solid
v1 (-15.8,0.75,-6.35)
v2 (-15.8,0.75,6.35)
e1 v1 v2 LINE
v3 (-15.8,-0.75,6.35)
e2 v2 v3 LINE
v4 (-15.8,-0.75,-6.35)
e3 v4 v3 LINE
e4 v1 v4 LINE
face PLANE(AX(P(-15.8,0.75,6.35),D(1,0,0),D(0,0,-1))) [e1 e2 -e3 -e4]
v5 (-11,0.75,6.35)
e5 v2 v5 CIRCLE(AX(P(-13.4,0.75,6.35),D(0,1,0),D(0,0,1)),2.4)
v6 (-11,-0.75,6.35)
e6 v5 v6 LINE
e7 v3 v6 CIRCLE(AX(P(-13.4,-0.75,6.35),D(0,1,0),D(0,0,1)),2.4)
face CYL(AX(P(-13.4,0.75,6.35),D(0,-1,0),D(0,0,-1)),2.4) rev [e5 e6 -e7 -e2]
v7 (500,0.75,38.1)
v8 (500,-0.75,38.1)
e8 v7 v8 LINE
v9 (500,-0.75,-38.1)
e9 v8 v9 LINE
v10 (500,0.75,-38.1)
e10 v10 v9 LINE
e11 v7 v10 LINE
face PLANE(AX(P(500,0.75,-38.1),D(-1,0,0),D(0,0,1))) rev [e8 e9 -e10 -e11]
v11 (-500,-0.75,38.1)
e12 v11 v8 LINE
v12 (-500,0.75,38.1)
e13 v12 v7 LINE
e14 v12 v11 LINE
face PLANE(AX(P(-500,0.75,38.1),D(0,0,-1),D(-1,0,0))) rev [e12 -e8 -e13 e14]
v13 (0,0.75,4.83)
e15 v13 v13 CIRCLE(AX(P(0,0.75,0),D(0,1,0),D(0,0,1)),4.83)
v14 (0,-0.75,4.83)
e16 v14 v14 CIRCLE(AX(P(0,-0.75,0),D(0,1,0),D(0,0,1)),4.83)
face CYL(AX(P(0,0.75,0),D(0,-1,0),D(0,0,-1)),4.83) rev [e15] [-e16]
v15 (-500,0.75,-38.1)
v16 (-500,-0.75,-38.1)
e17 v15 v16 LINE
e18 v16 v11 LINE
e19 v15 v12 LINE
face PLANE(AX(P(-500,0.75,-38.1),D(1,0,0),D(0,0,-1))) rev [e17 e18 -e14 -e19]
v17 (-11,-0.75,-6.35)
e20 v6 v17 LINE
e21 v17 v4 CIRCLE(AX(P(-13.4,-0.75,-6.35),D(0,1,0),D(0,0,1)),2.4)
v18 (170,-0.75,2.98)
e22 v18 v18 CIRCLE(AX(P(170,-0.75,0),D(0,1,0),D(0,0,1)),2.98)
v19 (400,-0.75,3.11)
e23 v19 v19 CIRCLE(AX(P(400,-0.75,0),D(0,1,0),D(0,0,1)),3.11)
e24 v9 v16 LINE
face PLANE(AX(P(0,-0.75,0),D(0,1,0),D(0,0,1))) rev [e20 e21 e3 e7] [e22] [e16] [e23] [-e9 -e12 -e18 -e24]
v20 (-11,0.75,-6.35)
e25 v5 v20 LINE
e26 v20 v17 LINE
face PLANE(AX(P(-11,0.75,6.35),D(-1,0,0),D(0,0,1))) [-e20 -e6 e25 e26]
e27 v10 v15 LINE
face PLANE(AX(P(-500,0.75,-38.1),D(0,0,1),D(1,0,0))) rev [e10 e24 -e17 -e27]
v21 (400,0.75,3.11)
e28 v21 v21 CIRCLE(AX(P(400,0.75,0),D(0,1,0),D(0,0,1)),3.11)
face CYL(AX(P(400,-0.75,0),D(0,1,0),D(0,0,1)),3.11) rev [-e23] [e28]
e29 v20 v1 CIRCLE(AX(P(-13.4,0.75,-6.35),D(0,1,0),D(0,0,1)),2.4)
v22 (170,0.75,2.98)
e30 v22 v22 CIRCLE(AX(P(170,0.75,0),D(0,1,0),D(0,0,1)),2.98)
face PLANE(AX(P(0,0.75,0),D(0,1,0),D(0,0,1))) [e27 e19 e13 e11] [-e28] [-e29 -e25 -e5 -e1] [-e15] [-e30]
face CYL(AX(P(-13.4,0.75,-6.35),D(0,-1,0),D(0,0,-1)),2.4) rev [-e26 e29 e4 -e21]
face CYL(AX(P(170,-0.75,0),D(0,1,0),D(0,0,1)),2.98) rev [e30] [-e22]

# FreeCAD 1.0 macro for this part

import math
import FreeCAD as App
import Part
import Sketcher

V = App.Vector
Q = App.Units.Quantity


def add_polygon(sketch, points):
    """Adds a closed chain of lines whose ends are joined by coincident constraints."""
    first, n = sketch.GeometryCount, len(points)
    for a, b in zip(points, points[1:] + points[:1]):
        sketch.addGeometry(Part.LineSegment(App.Vector(*a, 0), App.Vector(*b, 0)), False)
    for i in range(n):
        sketch.addConstraint(Sketcher.Constraint("Coincident", first + i, 2, first + (i + 1) % n, 1))

doc = App.newDocument("Part")
params = doc.addObject("Spreadsheet::Sheet", "Params")
for row, (alias, value) in enumerate([
    ("sketch1_radius", "2.4 mm"),
    ("sketch1_diameter", "9.66 mm"),
    ("sketch1_width", "1000 mm"),
    ("sketch1_height", "76.2 mm"),
    ("sketch1_height2", "12.7 mm"),
    ("pad1_length", "1.5 mm"),
    ("sketch2_diameter", "5.96 mm"),
    ("sketch2_diameter2", "6.22 mm"),
], start=1):
    params.set(f"A{row}", alias)
    params.set(f"B{row}", "=" + value)
    params.setAlias(f"B{row}", alias)

body = doc.addObject("PartDesign::Body", "Body")

sketch1 = body.newObject("Sketcher::SketchObject", "Sketch")
sketch1.AttachmentSupport = (doc.getObject("XZ_Plane"), [""])
sketch1.MapMode = "FlatFace"
add_polygon(sketch1, [(-500, -38.1), (-500, 38.1), (500, 38.1), (500, -38.1)])
sketch1.addGeometry(Part.ArcOfCircle(Part.Circle(V(-13.4, 6.35, 0), V(0, 0, 1), 2.4), math.radians(0), math.radians(180)), False)
sketch1.addGeometry(Part.LineSegment(V(-15.8, 6.35, 0), V(-15.8, -6.35, 0)), False)
sketch1.addGeometry(Part.ArcOfCircle(Part.Circle(V(-13.4, -6.35, 0), V(0, 0, 1), 2.4), math.radians(180), math.radians(360)), False)
sketch1.addGeometry(Part.LineSegment(V(-11, -6.35, 0), V(-11, 6.35, 0)), False)
sketch1.addGeometry(Part.Circle(V(0, 0, 0), V(0, 0, 1), 4.83), False)
sketch1.addConstraint(Sketcher.Constraint("Tangent", 4, 2, 5, 1))
sketch1.addConstraint(Sketcher.Constraint("Tangent", 5, 2, 6, 1))
sketch1.addConstraint(Sketcher.Constraint("Tangent", 6, 2, 7, 1))
sketch1.addConstraint(Sketcher.Constraint("Tangent", 7, 2, 4, 1))
sketch1.addConstraint(Sketcher.Constraint("Vertical", 0))
sketch1.addConstraint(Sketcher.Constraint("Horizontal", 1))
sketch1.addConstraint(Sketcher.Constraint("Vertical", 2))
sketch1.addConstraint(Sketcher.Constraint("Horizontal", 3))
sketch1.addConstraint(Sketcher.Constraint("Vertical", 5))
sketch1.addConstraint(Sketcher.Constraint("Vertical", 7))
sketch1.addConstraint(Sketcher.Constraint("Coincident", 8, 3, -1, 1))
sketch1.addConstraint(Sketcher.Constraint("Symmetric", 0, 2, 2, 2, -1, 1))
sketch1.addConstraint(Sketcher.Constraint("Radius", 4, Q("2.4 mm")))
sketch1.addConstraint(Sketcher.Constraint("Diameter", 8, Q("9.66 mm")))
sketch1.addConstraint(Sketcher.Constraint("DistanceX", 1, 1, 1, 2, Q("1000 mm")))
sketch1.addConstraint(Sketcher.Constraint("DistanceY", 0, 1, 0, 2, Q("76.2 mm")))
sketch1.addConstraint(Sketcher.Constraint("DistanceY", 5, 2, 5, 1, Q("12.7 mm")))
sketch1.addConstraint(Sketcher.Constraint("DistanceX", 6, 2, -1, 1, Q("11 mm")))
sketch1.addConstraint(Sketcher.Constraint("DistanceY", -1, 1, 4, 3, Q("6.35 mm")))
sketch1.setExpression("Constraints[16]", "Params.sketch1_radius")
sketch1.setExpression("Constraints[17]", "Params.sketch1_diameter")
sketch1.setExpression("Constraints[18]", "Params.sketch1_width")
sketch1.setExpression("Constraints[19]", "Params.sketch1_height")
sketch1.setExpression("Constraints[20]", "Params.sketch1_height2")
pad1 = body.newObject("PartDesign::Pad", "Pad")
pad1.Profile = sketch1
pad1.setExpression("Length", "Params.pad1_length")
pad1.Midplane = True

sketch2 = body.newObject("Sketcher::SketchObject", "Sketch001")
sketch2.AttachmentSupport = (doc.getObject("XZ_Plane"), [""])
sketch2.MapMode = "FlatFace"
sketch2.AttachmentOffset = App.Placement(V(0, 0, -0.75), App.Rotation())
sketch2.addGeometry(Part.Circle(V(170, 0, 0), V(0, 0, 1), 2.98), False)
sketch2.addGeometry(Part.Circle(V(400, 0, 0), V(0, 0, 1), 3.11), False)
sketch2.addConstraint(Sketcher.Constraint("PointOnObject", 0, 3, -1))
sketch2.addConstraint(Sketcher.Constraint("PointOnObject", 1, 3, -1))
sketch2.addConstraint(Sketcher.Constraint("Diameter", 0, Q("5.96 mm")))
sketch2.addConstraint(Sketcher.Constraint("Diameter", 1, Q("6.22 mm")))
sketch2.addConstraint(Sketcher.Constraint("DistanceX", -1, 1, 0, 3, Q("170 mm")))
sketch2.addConstraint(Sketcher.Constraint("DistanceX", -1, 1, 1, 3, Q("400 mm")))
sketch2.setExpression("Constraints[2]", "Params.sketch2_diameter")
sketch2.setExpression("Constraints[3]", "Params.sketch2_diameter2")
pocket1 = body.newObject("PartDesign::Pocket", "Pocket")
pocket1.Profile = sketch2
pocket1.Type = "ThroughAll"
pocket1.Reversed = True

doc.recompute()
